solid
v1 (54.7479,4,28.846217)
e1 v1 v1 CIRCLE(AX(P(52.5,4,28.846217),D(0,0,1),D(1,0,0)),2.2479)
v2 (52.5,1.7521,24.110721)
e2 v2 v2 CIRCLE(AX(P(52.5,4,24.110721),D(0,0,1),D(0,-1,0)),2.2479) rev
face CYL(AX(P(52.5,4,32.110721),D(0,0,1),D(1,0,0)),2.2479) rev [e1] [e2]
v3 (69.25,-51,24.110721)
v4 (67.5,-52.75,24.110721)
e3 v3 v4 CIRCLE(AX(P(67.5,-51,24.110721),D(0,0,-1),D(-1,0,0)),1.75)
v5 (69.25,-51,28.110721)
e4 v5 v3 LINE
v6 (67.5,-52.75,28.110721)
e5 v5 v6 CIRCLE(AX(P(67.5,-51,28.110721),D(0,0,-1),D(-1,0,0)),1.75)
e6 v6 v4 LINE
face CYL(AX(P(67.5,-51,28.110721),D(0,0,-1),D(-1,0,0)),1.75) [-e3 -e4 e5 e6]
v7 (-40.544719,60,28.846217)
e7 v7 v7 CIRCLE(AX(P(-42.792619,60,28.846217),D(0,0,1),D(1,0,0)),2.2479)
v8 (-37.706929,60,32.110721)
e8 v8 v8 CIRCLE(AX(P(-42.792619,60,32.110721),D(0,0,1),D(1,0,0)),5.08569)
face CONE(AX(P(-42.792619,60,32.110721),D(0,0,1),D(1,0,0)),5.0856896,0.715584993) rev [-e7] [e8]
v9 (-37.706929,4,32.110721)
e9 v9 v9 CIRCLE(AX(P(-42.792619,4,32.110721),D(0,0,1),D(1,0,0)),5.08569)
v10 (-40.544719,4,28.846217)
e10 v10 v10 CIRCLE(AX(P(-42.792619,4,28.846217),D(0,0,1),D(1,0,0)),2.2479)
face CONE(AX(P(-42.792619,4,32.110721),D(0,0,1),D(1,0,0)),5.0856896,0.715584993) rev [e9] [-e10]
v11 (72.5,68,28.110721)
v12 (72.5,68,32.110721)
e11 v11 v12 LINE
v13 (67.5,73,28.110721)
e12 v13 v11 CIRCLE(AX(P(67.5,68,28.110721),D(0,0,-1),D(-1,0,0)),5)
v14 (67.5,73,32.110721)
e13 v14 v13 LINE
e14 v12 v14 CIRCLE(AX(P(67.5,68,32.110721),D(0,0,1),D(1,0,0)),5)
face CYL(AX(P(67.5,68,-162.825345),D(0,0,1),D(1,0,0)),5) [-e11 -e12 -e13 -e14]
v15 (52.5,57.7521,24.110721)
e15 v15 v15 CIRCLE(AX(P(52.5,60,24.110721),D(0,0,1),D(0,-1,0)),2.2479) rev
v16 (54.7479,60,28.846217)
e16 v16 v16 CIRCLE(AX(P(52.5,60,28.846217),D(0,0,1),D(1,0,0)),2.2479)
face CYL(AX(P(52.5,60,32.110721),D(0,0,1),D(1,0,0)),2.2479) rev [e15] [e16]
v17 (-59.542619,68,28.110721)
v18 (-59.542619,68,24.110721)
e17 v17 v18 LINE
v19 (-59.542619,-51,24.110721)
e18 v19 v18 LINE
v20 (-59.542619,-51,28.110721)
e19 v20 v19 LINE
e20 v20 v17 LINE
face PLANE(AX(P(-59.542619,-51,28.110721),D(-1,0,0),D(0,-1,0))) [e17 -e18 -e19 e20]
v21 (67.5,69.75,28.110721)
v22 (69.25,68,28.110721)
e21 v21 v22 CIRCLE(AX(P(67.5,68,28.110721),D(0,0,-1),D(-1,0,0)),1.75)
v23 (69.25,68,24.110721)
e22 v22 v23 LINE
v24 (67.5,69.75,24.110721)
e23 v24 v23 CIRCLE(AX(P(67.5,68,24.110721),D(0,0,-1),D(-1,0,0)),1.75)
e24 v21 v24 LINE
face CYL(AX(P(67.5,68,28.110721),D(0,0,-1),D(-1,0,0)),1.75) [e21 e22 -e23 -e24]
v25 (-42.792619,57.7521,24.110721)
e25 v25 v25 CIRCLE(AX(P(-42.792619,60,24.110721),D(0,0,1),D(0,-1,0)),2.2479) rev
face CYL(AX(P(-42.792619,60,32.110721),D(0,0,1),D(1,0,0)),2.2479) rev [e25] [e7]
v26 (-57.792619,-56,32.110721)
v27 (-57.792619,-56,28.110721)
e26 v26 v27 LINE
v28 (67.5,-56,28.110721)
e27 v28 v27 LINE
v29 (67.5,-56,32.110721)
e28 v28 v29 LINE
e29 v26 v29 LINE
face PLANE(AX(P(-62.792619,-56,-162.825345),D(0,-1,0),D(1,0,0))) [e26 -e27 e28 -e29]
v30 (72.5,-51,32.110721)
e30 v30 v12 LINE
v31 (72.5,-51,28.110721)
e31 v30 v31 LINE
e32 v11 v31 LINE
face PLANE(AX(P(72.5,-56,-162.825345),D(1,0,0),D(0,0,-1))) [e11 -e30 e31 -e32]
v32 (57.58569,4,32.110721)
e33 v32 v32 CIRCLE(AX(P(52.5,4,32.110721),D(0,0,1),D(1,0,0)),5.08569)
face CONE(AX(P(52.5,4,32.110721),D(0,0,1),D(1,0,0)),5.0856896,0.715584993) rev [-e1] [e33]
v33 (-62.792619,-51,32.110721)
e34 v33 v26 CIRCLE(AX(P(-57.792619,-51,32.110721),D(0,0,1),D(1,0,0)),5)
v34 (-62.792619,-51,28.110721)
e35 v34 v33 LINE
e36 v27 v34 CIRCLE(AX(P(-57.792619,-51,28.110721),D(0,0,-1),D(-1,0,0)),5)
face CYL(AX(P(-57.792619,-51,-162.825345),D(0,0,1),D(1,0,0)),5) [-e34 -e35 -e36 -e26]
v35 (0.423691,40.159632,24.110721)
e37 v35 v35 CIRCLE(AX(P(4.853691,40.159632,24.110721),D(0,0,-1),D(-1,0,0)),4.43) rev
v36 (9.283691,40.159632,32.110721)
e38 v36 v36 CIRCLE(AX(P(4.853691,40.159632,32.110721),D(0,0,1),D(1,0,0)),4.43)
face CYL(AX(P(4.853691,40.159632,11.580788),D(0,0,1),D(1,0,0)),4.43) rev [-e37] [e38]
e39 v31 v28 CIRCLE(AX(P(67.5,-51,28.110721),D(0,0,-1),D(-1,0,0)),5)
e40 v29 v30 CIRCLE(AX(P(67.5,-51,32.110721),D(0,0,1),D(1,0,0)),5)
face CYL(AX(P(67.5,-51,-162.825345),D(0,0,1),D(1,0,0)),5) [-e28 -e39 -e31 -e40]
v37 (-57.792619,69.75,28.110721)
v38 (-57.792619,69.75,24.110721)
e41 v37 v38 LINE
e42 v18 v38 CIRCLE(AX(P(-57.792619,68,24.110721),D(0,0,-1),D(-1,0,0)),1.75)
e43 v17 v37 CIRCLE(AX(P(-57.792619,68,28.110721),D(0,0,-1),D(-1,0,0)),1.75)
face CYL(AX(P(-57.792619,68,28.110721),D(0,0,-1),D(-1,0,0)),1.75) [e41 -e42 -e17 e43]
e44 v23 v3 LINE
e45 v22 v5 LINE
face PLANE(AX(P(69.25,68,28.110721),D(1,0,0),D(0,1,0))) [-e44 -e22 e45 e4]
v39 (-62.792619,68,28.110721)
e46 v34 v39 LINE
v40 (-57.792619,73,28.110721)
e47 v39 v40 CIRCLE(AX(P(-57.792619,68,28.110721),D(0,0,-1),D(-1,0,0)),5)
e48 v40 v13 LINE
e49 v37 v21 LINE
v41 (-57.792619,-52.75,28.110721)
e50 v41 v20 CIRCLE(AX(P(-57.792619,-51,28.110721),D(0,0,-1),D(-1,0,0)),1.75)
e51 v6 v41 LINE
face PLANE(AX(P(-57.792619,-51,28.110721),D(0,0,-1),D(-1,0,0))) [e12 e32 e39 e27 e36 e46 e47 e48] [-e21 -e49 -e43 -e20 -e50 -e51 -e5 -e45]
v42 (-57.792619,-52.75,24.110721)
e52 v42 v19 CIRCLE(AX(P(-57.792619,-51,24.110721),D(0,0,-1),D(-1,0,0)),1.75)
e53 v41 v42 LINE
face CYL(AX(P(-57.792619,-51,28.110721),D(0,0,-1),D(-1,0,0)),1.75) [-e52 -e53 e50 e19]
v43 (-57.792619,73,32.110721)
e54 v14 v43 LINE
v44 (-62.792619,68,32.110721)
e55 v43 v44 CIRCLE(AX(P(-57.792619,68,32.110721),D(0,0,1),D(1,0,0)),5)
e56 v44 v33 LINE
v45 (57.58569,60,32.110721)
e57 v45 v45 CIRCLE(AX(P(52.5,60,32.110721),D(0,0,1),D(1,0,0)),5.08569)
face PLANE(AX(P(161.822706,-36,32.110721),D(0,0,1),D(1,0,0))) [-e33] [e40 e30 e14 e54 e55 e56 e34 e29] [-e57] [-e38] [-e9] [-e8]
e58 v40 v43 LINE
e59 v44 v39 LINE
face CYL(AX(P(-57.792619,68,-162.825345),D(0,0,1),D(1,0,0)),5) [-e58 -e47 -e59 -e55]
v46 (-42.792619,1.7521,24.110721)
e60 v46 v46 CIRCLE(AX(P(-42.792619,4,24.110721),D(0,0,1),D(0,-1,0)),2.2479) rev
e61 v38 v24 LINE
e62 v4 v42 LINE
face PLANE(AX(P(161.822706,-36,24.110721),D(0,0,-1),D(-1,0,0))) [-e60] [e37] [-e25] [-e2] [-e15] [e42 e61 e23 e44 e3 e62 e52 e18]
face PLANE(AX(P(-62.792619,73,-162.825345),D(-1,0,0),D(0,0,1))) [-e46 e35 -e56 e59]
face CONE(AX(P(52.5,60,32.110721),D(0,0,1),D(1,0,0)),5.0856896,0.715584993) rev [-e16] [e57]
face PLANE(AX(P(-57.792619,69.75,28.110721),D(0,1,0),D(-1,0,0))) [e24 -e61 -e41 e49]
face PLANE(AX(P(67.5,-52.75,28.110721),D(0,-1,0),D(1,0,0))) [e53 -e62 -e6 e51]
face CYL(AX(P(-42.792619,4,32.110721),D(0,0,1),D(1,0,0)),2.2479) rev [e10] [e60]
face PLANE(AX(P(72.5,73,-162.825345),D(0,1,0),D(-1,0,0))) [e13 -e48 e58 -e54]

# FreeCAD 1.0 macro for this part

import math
import FreeCAD as App
import Part
import Sketcher
from FreeCAD import Vector
Q = App.Units.Quantity


def edges_at(feature, points):
    """Names of the edges that pass closest to the given points."""
    edges = feature.Shape.Edges
    near = lambda p: min(range(len(edges)), key=lambda i: edges[i].distToShape(Part.Vertex(*p))[0])
    return sorted({f"Edge{near(p) + 1}" for p in points})


def add_polygon(sketch, points):
    """Adds a closed chain of lines whose ends are joined by coincident constraints."""
    first, n = sketch.GeometryCount, len(points)
    for a, b in zip(points, points[1:] + points[:1]):
        sketch.addGeometry(Part.LineSegment(App.Vector(*a, 0), App.Vector(*b, 0)), False)
    for i in range(n):
        sketch.addConstraint(Sketcher.Constraint("Coincident", first + i, 2, first + (i + 1) % n, 1))

doc = App.newDocument("Part")
body = doc.addObject("PartDesign::Body", "Body")

sketch1 = body.newObject("Sketcher::SketchObject", "Sketch")
sketch1.AttachmentSupport = (doc.getObject("XZ_Plane"), [""])
sketch1.MapMode = "FlatFace"
add_polygon(sketch1, [(-53, -110), (-53, 24), (63, 24), (63, -110)])
sketch1.addConstraint([
    Sketcher.Constraint("Vertical", 0),
    Sketcher.Constraint("Horizontal", 1),
    Sketcher.Constraint("Vertical", 2),
    Sketcher.Constraint("Horizontal", 3),
    Sketcher.Constraint("DistanceY", 0, 1, 0, 2, Q("134 mm")),
    Sketcher.Constraint("DistanceX", -1, 1, 1, 2, Q("62.5 mm")),
    Sketcher.Constraint("DistanceX", 1, 1, 1, 2, Q("115.292619 mm")),
    Sketcher.Constraint("DistanceY", -1, 1, 0, 2, Q("24.110721 mm")),
])
pad1 = body.newObject("PartDesign::Pad", "Pad")
pad1.Profile = sketch1
pad1.Length = 8
pad1.Reversed = True
doc.recompute()

fillet = body.newObject("PartDesign::Fillet", "Fillet")
fillet.Base = (pad1, edges_at(pad1, [(-52.793, 4, -109.889), (62.5, 4, -109.889)]))
fillet.Radius = 6

sketch2 = body.newObject("Sketcher::SketchObject", "Sketch001")
sketch2.AttachmentSupport = (doc.getObject("YZ_Plane"), [""])
sketch2.MapMode = "FlatFace"
sketch2.AttachmentOffset = App.Placement(Vector(0, 0, -52.792619), App.Rotation())
add_polygon(sketch2, [(63, 24), (-36, 24), (-36, 32), (63, 32)])
sketch2.addConstraint([
    Sketcher.Constraint("Horizontal", 0),
    Sketcher.Constraint("Vertical", 1),
    Sketcher.Constraint("Horizontal", 2),
    Sketcher.Constraint("Vertical", 3),
    Sketcher.Constraint("DistanceX", 0, 2, 0, 1, Q("99 mm")),
    Sketcher.Constraint("DistanceY", 1, 1, 1, 2, Q("8 mm")),
    Sketcher.Constraint("DistanceX", 0, 2, -1, 1, Q("36 mm")),
    Sketcher.Constraint("DistanceY", -1, 1, 0, 2, Q("24.110721 mm")),
])
pad2 = body.newObject("PartDesign::Pad", "Pad001")
pad2.Profile = sketch2
pad2.Length = 115.292619

sketch3 = body.newObject("Sketcher::SketchObject", "Sketch002")
sketch3.AttachmentSupport = (doc.getObject("XY_Plane"), [""])
sketch3.MapMode = "FlatFace"
sketch3.AttachmentOffset = App.Placement(Vector(0, 0, 32.110721), App.Rotation())
add_polygon(sketch3, [(-63, 73), (-63, -56), (72, -56), (72, 73)])
add_polygon(sketch3, [(63, -36), (-53, -36), (-53, 63), (63, 63)])
sketch3.addConstraint([
    Sketcher.Constraint("Vertical", 0),
    Sketcher.Constraint("Horizontal", 1),
    Sketcher.Constraint("Vertical", 2),
    Sketcher.Constraint("Horizontal", 3),
    Sketcher.Constraint("Horizontal", 4),
    Sketcher.Constraint("Vertical", 5),
    Sketcher.Constraint("Horizontal", 6),
    Sketcher.Constraint("Vertical", 7),
    Sketcher.Constraint("DistanceY", 0, 2, 0, 1, Q("129 mm")),
    Sketcher.Constraint("DistanceY", 5, 1, 5, 2, Q("99 mm")),
    Sketcher.Constraint("DistanceY", 0, 2, -1, 1, Q("56 mm")),
    Sketcher.Constraint("DistanceY", 4, 2, -1, 1, Q("36 mm")),
    Sketcher.Constraint("DistanceX", 0, 2, 4, 2, Q("10 mm")),
    Sketcher.Constraint("DistanceX", 6, 2, 2, 2, Q("10 mm")),
    Sketcher.Constraint("DistanceX", -1, 1, 1, 2, Q("72.5 mm")),
    Sketcher.Constraint("DistanceX", 1, 1, 1, 2, Q("135.292619 mm")),
])
pad3 = body.newObject("PartDesign::Pad", "Pad002")
pad3.Profile = sketch3
pad3.Length = 8
pad3.Reversed = True
doc.recompute()

fillet2 = body.newObject("PartDesign::Fillet", "Fillet001")
fillet2.Base = (pad3, edges_at(pad3, [
    (72.5, 73, 28.111),
    (72.5, -56, 28.111),
    (-62.793, -56, 28.111),
    (-62.793, 73, 28.111),
]))
fillet2.Radius = 5

sketch4 = body.newObject("Sketcher::SketchObject", "Sketch003")
sketch4.AttachmentSupport = (doc.getObject("XY_Plane"), [""])
sketch4.MapMode = "FlatFace"
sketch4.AttachmentOffset = App.Placement(Vector(0, 0, 24.110721), App.Rotation())
sketch4.addGeometry([
    Part.LineSegment(Vector(-62.8, -51, 0), Vector(-62.8, 68, 0)),
    Part.ArcOfCircle(Part.Circle(Vector(-57.8, 68, 0), Vector(0, 0, 1), 5), math.radians(90), math.radians(180)),
    Part.LineSegment(Vector(-57.8, 73, 0), Vector(67.5, 73, 0)),
    Part.ArcOfCircle(Part.Circle(Vector(67.5, 68, 0), Vector(0, 0, 1), 5), math.radians(0), math.radians(90)),
    Part.LineSegment(Vector(72.5, 68, 0), Vector(72.5, -51, 0)),
    Part.ArcOfCircle(Part.Circle(Vector(67.5, -51, 0), Vector(0, 0, 1), 5), math.radians(-90), math.radians(0)),
    Part.LineSegment(Vector(67.5, -56, 0), Vector(-57.8, -56, 0)),
    Part.ArcOfCircle(Part.Circle(Vector(-57.8, -51, 0), Vector(0, 0, 1), 5), math.radians(180), math.radians(270)),
    Part.LineSegment(Vector(67.5, 69.8, 0), Vector(-57.8, 69.8, 0)),
    Part.ArcOfCircle(Part.Circle(Vector(-57.8, 68, 0), Vector(0, 0, 1), 1.8), math.radians(90), math.radians(180)),
    Part.LineSegment(Vector(-59.5, 68, 0), Vector(-59.5, -51, 0)),
    Part.ArcOfCircle(Part.Circle(Vector(-57.8, -51, 0), Vector(0, 0, 1), 1.8), math.radians(180), math.radians(270)),
    Part.LineSegment(Vector(-57.8, -52.8, 0), Vector(67.5, -52.8, 0)),
    Part.ArcOfCircle(Part.Circle(Vector(67.5, -51, 0), Vector(0, 0, 1), 1.8), math.radians(-90), math.radians(0)),
    Part.LineSegment(Vector(69.2, -51, 0), Vector(69.2, 68, 0)),
    Part.ArcOfCircle(Part.Circle(Vector(67.5, 68, 0), Vector(0, 0, 1), 1.8), math.radians(0), math.radians(90)),
], False)
sketch4.addConstraint([
    Sketcher.Constraint("Tangent", 0, 2, 1, 2),
    Sketcher.Constraint("Tangent", 1, 1, 2, 1),
    Sketcher.Constraint("Tangent", 2, 2, 3, 2),
    Sketcher.Constraint("Tangent", 3, 1, 4, 1),
    Sketcher.Constraint("Tangent", 4, 2, 5, 2),
    Sketcher.Constraint("Tangent", 5, 1, 6, 1),
    Sketcher.Constraint("Tangent", 6, 2, 7, 2),
    Sketcher.Constraint("Tangent", 7, 1, 0, 1),
    Sketcher.Constraint("Tangent", 8, 2, 9, 1),
    Sketcher.Constraint("Tangent", 9, 2, 10, 1),
    Sketcher.Constraint("Tangent", 10, 2, 11, 1),
    Sketcher.Constraint("Tangent", 11, 2, 12, 1),
    Sketcher.Constraint("Tangent", 12, 2, 13, 1),
    Sketcher.Constraint("Tangent", 13, 2, 14, 1),
    Sketcher.Constraint("Tangent", 14, 2, 15, 1),
    Sketcher.Constraint("Tangent", 15, 2, 8, 1),
    Sketcher.Constraint("Vertical", 0),
    Sketcher.Constraint("Horizontal", 2),
    Sketcher.Constraint("Vertical", 4),
    Sketcher.Constraint("Horizontal", 6),
    Sketcher.Constraint("Horizontal", 8),
    Sketcher.Constraint("Vertical", 10),
    Sketcher.Constraint("Horizontal", 12),
    Sketcher.Constraint("Vertical", 14),
    Sketcher.Constraint("Coincident", 9, 3, 1, 3),
    Sketcher.Constraint("Coincident", 11, 3, 7, 3),
    Sketcher.Constraint("Coincident", 13, 3, 5, 3),
    Sketcher.Constraint("Equal", 1, 3),
    Sketcher.Constraint("Equal", 3, 5),
    Sketcher.Constraint("Equal", 5, 7),
    Sketcher.Constraint("Equal", 13, 15),
    Sketcher.Constraint("Radius", 1, Q("5 mm")),
    Sketcher.Constraint("DistanceY", 0, 1, 0, 2, Q("119 mm")),
    Sketcher.Constraint("Radius", 9, Q("1.75 mm")),
    Sketcher.Constraint("DistanceY", -1, 1, 1, 3, Q("68 mm")),
    Sketcher.Constraint("DistanceX", -1, 1, 3, 3, Q("67.5 mm")),
    Sketcher.Constraint("DistanceX", 2, 1, 2, 2, Q("125.292619 mm")),
])
pocket1 = body.newObject("PartDesign::Pocket", "Pocket")
pocket1.Profile = sketch4
pocket1.Length = 4
pocket1.Reversed = True

sketch5 = body.newObject("Sketcher::SketchObject", "Sketch004")
sketch5.AttachmentSupport = (doc.getObject("XY_Plane"), [""])
sketch5.MapMode = "FlatFace"
sketch5.AttachmentOffset = App.Placement(Vector(0, 0, 24.110721), App.Rotation())
add_polygon(sketch5, [(63, 65), (63, 55), (-53, 55), (-53, 65)])
sketch5.addConstraint([
    Sketcher.Constraint("Vertical", 0),
    Sketcher.Constraint("Horizontal", 1),
    Sketcher.Constraint("Vertical", 2),
    Sketcher.Constraint("Horizontal", 3),
    Sketcher.Constraint("DistanceY", 0, 2, 0, 1, Q("10 mm")),
    Sketcher.Constraint("DistanceY", -1, 1, 0, 2, Q("55 mm")),
    Sketcher.Constraint("DistanceX", -1, 1, 0, 2, Q("62.5 mm")),
    Sketcher.Constraint("DistanceX", 1, 2, 1, 1, Q("115.292619 mm")),
])
pad4 = body.newObject("PartDesign::Pad", "Pad003")
pad4.Profile = sketch5
pad4.Length = 104
pad4.Reversed = True
doc.recompute()

fillet3 = body.newObject("PartDesign::Fillet", "Fillet002")
fillet3.Base = (pad4, edges_at(pad4, [(62.5, 60, -79.889), (-52.793, 60, -79.889)]))
fillet3.Radius = 6

sketch6 = body.newObject("Sketcher::SketchObject", "Sketch005")
sketch6.AttachmentSupport = (doc.getObject("XY_Plane"), [""])
sketch6.MapMode = "FlatFace"
sketch6.AttachmentOffset = App.Placement(Vector(0, 0, 32.110721), App.Rotation())
sketch6.addGeometry(Part.Circle(Vector(4.9, 40.2, 0), Vector(0, 0, 1), 4.4), False)
sketch6.addConstraint([
    Sketcher.Constraint("Diameter", 0, Q("8.86 mm")),
    Sketcher.Constraint("DistanceX", -1, 1, 0, 3, Q("4.853691 mm")),
    Sketcher.Constraint("DistanceY", -1, 1, 0, 3, Q("40.159632 mm")),
])
pocket2 = body.newObject("PartDesign::Pocket", "Pocket001")
pocket2.Profile = sketch6
pocket2.Length = 8

sketch7 = body.newObject("Sketcher::SketchObject", "Sketch006")
sketch7.AttachmentSupport = (doc.getObject("XZ_Plane"), [""])
sketch7.MapMode = "FlatFace"
sketch7.AttachmentOffset = App.Placement(Vector(0, 0, -8), App.Rotation())
sketch7.addGeometry([
    Part.Circle(Vector(-28.3, -101.6, 0), Vector(0, 0, 1), 1.4),
    Part.Circle(Vector(-7.3, -101.6, 0), Vector(0, 0, 1), 1.4),
    Part.Circle(Vector(-7.3, -88.1, 0), Vector(0, 0, 1), 1.4),
    Part.Circle(Vector(-28.3, -88.1, 0), Vector(0, 0, 1), 1.4),
], False)
sketch7.addConstraint([
    Sketcher.Constraint("Equal", 0, 1),
    Sketcher.Constraint("Equal", 1, 2),
    Sketcher.Constraint("Equal", 2, 3),
    Sketcher.Constraint("Horizontal", 0, 3, 1, 3),
    Sketcher.Constraint("Horizontal", 2, 3, 3, 3),
    Sketcher.Constraint("Vertical", 1, 3, 2, 3),
    Sketcher.Constraint("Vertical", 0, 3, 3, 3),
    Sketcher.Constraint("Diameter", 0, Q("2.9 mm")),
    Sketcher.Constraint("DistanceY", 1, 3, 2, 3, Q("13.5 mm")),
    Sketcher.Constraint("DistanceX", 0, 3, -1, 1, Q("28.27 mm")),
    Sketcher.Constraint("DistanceY", 0, 3, -1, 1, Q("101.64 mm")),
    Sketcher.Constraint("DistanceX", 1, 3, -1, 1, Q("7.29 mm")),
])
doc.recompute()
hole = body.newObject("PartDesign::Hole", "Hole")
hole.Profile = sketch7
hole.ThreadType = "None"
hole.Diameter = 2.9
hole.DepthType = "ThroughAll"
hole.Reversed = True

sketch8 = body.newObject("Sketcher::SketchObject", "Sketch007")
sketch8.AttachmentSupport = (doc.getObject("XZ_Plane"), [""])
sketch8.MapMode = "FlatFace"
sketch8.addGeometry([
    Part.LineSegment(Vector(-26.3, -103.1, 0), Vector(-30.3, -103.1, 0)),
    Part.ArcOfCircle(Part.Circle(Vector(-30.3, -101.6, 0), Vector(0, 0, 1), 1.4), math.radians(90), math.radians(270)),
    Part.LineSegment(Vector(-30.3, -100.2, 0), Vector(-26.3, -100.2, 0)),
    Part.ArcOfCircle(Part.Circle(Vector(-26.3, -101.6, 0), Vector(0, 0, 1), 1.4), math.radians(-90), math.radians(90)),
    Part.LineSegment(Vector(-5.3, -103.1, 0), Vector(-9.3, -103.1, 0)),
    Part.ArcOfCircle(Part.Circle(Vector(-9.3, -101.6, 0), Vector(0, 0, 1), 1.4), math.radians(90), math.radians(270)),
    Part.LineSegment(Vector(-9.3, -100.2, 0), Vector(-5.3, -100.2, 0)),
    Part.ArcOfCircle(Part.Circle(Vector(-5.3, -101.6, 0), Vector(0, 0, 1), 1.4), math.radians(-90), math.radians(90)),
    Part.LineSegment(Vector(-26.3, -89.6, 0), Vector(-30.3, -89.6, 0)),
    Part.ArcOfCircle(Part.Circle(Vector(-30.3, -88.1, 0), Vector(0, 0, 1), 1.4), math.radians(90), math.radians(270)),
    Part.LineSegment(Vector(-30.3, -86.7, 0), Vector(-26.3, -86.7, 0)),
    Part.ArcOfCircle(Part.Circle(Vector(-26.3, -88.1, 0), Vector(0, 0, 1), 1.4), math.radians(-90), math.radians(90)),
    Part.LineSegment(Vector(-5.3, -89.6, 0), Vector(-9.3, -89.6, 0)),
    Part.ArcOfCircle(Part.Circle(Vector(-9.3, -88.1, 0), Vector(0, 0, 1), 1.4), math.radians(90), math.radians(270)),
    Part.LineSegment(Vector(-9.3, -86.7, 0), Vector(-5.3, -86.7, 0)),
    Part.ArcOfCircle(Part.Circle(Vector(-5.3, -88.1, 0), Vector(0, 0, 1), 1.4), math.radians(-90), math.radians(90)),
], False)
sketch8.addConstraint([
    Sketcher.Constraint("Tangent", 0, 2, 1, 2),
    Sketcher.Constraint("Tangent", 1, 1, 2, 1),
    Sketcher.Constraint("Tangent", 2, 2, 3, 2),
    Sketcher.Constraint("Tangent", 3, 1, 0, 1),
    Sketcher.Constraint("Tangent", 4, 2, 5, 2),
    Sketcher.Constraint("Tangent", 5, 1, 6, 1),
    Sketcher.Constraint("Tangent", 6, 2, 7, 2),
    Sketcher.Constraint("Tangent", 7, 1, 4, 1),
    Sketcher.Constraint("Tangent", 8, 2, 9, 2),
    Sketcher.Constraint("Tangent", 9, 1, 10, 1),
    Sketcher.Constraint("Tangent", 10, 2, 11, 2),
    Sketcher.Constraint("Tangent", 11, 1, 8, 1),
    Sketcher.Constraint("Tangent", 12, 2, 13, 2),
    Sketcher.Constraint("Tangent", 13, 1, 14, 1),
    Sketcher.Constraint("Tangent", 14, 2, 15, 2),
    Sketcher.Constraint("Tangent", 15, 1, 12, 1),
    Sketcher.Constraint("Horizontal", 0),
    Sketcher.Constraint("Horizontal", 2),
    Sketcher.Constraint("Horizontal", 4),
    Sketcher.Constraint("Horizontal", 6),
    Sketcher.Constraint("Horizontal", 8),
    Sketcher.Constraint("Horizontal", 10),
    Sketcher.Constraint("Horizontal", 12),
    Sketcher.Constraint("Horizontal", 14),
    Sketcher.Constraint("Equal", 3, 5),
    Sketcher.Constraint("Equal", 7, 9),
    Sketcher.Constraint("Equal", 11, 13),
    Sketcher.Constraint("Horizontal", 3, 3, 5, 3),
    Sketcher.Constraint("Horizontal", 11, 3, 13, 3),
    Sketcher.Constraint("Vertical", 1, 3, 9, 3),
    Sketcher.Constraint("Vertical", 3, 3, 11, 3),
    Sketcher.Constraint("Vertical", 5, 3, 13, 3),
    Sketcher.Constraint("Vertical", 7, 3, 15, 3),
    Sketcher.Constraint("Equal", 2, 4),
    Sketcher.Constraint("DistanceX", 0, 2, 0, 1, Q("4 mm")),
    Sketcher.Constraint("Radius", 1, Q("1.45 mm")),
    Sketcher.Constraint("DistanceY", 1, 3, 9, 3, Q("13.5 mm")),
    Sketcher.Constraint("DistanceX", 1, 3, -1, 1, Q("30.27 mm")),
    Sketcher.Constraint("DistanceY", 1, 3, -1, 1, Q("101.64 mm")),
    Sketcher.Constraint("DistanceX", 5, 3, -1, 1, Q("9.29 mm")),
])
pocket3 = body.newObject("PartDesign::Pocket", "Pocket002")
pocket3.Profile = sketch8
pocket3.Length = 8
doc.recompute()

chamfer = body.newObject("PartDesign::Chamfer", "Chamfer")
chamfer.Base = (pocket3, edges_at(pocket3, [
    (-7.29, 8, -100.19),
    (-3.84, 8, -101.64),
    (-7.29, 8, -103.09),
    (-28.27, 8, -86.69),
    (-24.82, 8, -88.14),
    (-28.27, 8, -89.59),
    (-7.29, 8, -86.69),
    (-3.84, 8, -88.14),
    (-7.29, 8, -89.59),
    (-28.27, 8, -103.09),
    (-31.72, 8, -101.64),
    (-28.27, 8, -100.19),
    (-24.82, 8, -101.64),
    (-10.74, 8, -88.14),
    (-31.72, 8, -88.14),
    (-10.74, 8, -101.64),
]))
chamfer.Size = 0.9

sketch9 = body.newObject("Sketcher::SketchObject", "Sketch008")
sketch9.AttachmentSupport = (doc.getObject("XY_Plane"), [""])
sketch9.MapMode = "FlatFace"
sketch9.AttachmentOffset = App.Placement(Vector(0, 0, 32.110721), App.Rotation())
sketch9.addGeometry([
    Part.Circle(Vector(-42.8, 60, 0), Vector(0, 0, 1), 2.2),
    Part.Circle(Vector(52.5, 60, 0), Vector(0, 0, 1), 2.2),
    Part.Circle(Vector(-42.8, 4, 0), Vector(0, 0, 1), 2.2),
    Part.Circle(Vector(52.5, 4, 0), Vector(0, 0, 1), 2.2),
], False)
sketch9.addConstraint([
    Sketcher.Constraint("Equal", 0, 1),
    Sketcher.Constraint("Equal", 1, 2),
    Sketcher.Constraint("Equal", 2, 3),
    Sketcher.Constraint("Horizontal", 0, 3, 1, 3),
    Sketcher.Constraint("Horizontal", 2, 3, 3, 3),
    Sketcher.Constraint("Vertical", 0, 3, 2, 3),
    Sketcher.Constraint("Vertical", 1, 3, 3, 3),
    Sketcher.Constraint("DistanceY", -1, 1, 0, 3, Q("60 mm")),
    Sketcher.Constraint("DistanceY", -1, 1, 2, 3, Q("4 mm")),
    Sketcher.Constraint("Diameter", 0, Q("4.4958 mm")),
    Sketcher.Constraint("DistanceX", -1, 1, 1, 3, Q("52.5 mm")),
    Sketcher.Constraint("DistanceX", 0, 3, -1, 1, Q("42.792619 mm")),
])
doc.recompute()
hole2 = body.newObject("PartDesign::Hole", "Hole001")
hole2.Profile = sketch9
hole2.ThreadType = "None"
hole2.Diameter = 4.4958
hole2.DepthType = "Dimension"
hole2.Depth = 8
hole2.DrillPoint = "Angled"
hole2.DrillPointAngle = 118
hole2.HoleCutType = "Countersink"
hole2.HoleCutDiameter = 10.171379
hole2.HoleCutCountersinkAngle = 82

sketch10 = body.newObject("Sketcher::SketchObject", "Sketch009")
sketch10.AttachmentSupport = (doc.getObject("XZ_Plane"), [""])
sketch10.MapMode = "FlatFace"
sketch10.AttachmentOffset = App.Placement(Vector(0, 0, -65), App.Rotation())
add_polygon(sketch10, [(-53, -110), (-53, 24), (63, 24), (63, -110)])
sketch10.addConstraint([
    Sketcher.Constraint("Vertical", 0),
    Sketcher.Constraint("Horizontal", 1),
    Sketcher.Constraint("Vertical", 2),
    Sketcher.Constraint("Horizontal", 3),
    Sketcher.Constraint("DistanceY", 0, 1, 0, 2, Q("134 mm")),
    Sketcher.Constraint("DistanceX", -1, 1, 1, 2, Q("62.5 mm")),
    Sketcher.Constraint("DistanceX", 1, 1, 1, 2, Q("115.292619 mm")),
    Sketcher.Constraint("DistanceY", -1, 1, 0, 2, Q("24.110721 mm")),
])
pocket4 = body.newObject("PartDesign::Pocket", "Pocket003")
pocket4.Profile = sketch10
pocket4.Length = 65
pocket4.Reversed = True

doc.recompute()
